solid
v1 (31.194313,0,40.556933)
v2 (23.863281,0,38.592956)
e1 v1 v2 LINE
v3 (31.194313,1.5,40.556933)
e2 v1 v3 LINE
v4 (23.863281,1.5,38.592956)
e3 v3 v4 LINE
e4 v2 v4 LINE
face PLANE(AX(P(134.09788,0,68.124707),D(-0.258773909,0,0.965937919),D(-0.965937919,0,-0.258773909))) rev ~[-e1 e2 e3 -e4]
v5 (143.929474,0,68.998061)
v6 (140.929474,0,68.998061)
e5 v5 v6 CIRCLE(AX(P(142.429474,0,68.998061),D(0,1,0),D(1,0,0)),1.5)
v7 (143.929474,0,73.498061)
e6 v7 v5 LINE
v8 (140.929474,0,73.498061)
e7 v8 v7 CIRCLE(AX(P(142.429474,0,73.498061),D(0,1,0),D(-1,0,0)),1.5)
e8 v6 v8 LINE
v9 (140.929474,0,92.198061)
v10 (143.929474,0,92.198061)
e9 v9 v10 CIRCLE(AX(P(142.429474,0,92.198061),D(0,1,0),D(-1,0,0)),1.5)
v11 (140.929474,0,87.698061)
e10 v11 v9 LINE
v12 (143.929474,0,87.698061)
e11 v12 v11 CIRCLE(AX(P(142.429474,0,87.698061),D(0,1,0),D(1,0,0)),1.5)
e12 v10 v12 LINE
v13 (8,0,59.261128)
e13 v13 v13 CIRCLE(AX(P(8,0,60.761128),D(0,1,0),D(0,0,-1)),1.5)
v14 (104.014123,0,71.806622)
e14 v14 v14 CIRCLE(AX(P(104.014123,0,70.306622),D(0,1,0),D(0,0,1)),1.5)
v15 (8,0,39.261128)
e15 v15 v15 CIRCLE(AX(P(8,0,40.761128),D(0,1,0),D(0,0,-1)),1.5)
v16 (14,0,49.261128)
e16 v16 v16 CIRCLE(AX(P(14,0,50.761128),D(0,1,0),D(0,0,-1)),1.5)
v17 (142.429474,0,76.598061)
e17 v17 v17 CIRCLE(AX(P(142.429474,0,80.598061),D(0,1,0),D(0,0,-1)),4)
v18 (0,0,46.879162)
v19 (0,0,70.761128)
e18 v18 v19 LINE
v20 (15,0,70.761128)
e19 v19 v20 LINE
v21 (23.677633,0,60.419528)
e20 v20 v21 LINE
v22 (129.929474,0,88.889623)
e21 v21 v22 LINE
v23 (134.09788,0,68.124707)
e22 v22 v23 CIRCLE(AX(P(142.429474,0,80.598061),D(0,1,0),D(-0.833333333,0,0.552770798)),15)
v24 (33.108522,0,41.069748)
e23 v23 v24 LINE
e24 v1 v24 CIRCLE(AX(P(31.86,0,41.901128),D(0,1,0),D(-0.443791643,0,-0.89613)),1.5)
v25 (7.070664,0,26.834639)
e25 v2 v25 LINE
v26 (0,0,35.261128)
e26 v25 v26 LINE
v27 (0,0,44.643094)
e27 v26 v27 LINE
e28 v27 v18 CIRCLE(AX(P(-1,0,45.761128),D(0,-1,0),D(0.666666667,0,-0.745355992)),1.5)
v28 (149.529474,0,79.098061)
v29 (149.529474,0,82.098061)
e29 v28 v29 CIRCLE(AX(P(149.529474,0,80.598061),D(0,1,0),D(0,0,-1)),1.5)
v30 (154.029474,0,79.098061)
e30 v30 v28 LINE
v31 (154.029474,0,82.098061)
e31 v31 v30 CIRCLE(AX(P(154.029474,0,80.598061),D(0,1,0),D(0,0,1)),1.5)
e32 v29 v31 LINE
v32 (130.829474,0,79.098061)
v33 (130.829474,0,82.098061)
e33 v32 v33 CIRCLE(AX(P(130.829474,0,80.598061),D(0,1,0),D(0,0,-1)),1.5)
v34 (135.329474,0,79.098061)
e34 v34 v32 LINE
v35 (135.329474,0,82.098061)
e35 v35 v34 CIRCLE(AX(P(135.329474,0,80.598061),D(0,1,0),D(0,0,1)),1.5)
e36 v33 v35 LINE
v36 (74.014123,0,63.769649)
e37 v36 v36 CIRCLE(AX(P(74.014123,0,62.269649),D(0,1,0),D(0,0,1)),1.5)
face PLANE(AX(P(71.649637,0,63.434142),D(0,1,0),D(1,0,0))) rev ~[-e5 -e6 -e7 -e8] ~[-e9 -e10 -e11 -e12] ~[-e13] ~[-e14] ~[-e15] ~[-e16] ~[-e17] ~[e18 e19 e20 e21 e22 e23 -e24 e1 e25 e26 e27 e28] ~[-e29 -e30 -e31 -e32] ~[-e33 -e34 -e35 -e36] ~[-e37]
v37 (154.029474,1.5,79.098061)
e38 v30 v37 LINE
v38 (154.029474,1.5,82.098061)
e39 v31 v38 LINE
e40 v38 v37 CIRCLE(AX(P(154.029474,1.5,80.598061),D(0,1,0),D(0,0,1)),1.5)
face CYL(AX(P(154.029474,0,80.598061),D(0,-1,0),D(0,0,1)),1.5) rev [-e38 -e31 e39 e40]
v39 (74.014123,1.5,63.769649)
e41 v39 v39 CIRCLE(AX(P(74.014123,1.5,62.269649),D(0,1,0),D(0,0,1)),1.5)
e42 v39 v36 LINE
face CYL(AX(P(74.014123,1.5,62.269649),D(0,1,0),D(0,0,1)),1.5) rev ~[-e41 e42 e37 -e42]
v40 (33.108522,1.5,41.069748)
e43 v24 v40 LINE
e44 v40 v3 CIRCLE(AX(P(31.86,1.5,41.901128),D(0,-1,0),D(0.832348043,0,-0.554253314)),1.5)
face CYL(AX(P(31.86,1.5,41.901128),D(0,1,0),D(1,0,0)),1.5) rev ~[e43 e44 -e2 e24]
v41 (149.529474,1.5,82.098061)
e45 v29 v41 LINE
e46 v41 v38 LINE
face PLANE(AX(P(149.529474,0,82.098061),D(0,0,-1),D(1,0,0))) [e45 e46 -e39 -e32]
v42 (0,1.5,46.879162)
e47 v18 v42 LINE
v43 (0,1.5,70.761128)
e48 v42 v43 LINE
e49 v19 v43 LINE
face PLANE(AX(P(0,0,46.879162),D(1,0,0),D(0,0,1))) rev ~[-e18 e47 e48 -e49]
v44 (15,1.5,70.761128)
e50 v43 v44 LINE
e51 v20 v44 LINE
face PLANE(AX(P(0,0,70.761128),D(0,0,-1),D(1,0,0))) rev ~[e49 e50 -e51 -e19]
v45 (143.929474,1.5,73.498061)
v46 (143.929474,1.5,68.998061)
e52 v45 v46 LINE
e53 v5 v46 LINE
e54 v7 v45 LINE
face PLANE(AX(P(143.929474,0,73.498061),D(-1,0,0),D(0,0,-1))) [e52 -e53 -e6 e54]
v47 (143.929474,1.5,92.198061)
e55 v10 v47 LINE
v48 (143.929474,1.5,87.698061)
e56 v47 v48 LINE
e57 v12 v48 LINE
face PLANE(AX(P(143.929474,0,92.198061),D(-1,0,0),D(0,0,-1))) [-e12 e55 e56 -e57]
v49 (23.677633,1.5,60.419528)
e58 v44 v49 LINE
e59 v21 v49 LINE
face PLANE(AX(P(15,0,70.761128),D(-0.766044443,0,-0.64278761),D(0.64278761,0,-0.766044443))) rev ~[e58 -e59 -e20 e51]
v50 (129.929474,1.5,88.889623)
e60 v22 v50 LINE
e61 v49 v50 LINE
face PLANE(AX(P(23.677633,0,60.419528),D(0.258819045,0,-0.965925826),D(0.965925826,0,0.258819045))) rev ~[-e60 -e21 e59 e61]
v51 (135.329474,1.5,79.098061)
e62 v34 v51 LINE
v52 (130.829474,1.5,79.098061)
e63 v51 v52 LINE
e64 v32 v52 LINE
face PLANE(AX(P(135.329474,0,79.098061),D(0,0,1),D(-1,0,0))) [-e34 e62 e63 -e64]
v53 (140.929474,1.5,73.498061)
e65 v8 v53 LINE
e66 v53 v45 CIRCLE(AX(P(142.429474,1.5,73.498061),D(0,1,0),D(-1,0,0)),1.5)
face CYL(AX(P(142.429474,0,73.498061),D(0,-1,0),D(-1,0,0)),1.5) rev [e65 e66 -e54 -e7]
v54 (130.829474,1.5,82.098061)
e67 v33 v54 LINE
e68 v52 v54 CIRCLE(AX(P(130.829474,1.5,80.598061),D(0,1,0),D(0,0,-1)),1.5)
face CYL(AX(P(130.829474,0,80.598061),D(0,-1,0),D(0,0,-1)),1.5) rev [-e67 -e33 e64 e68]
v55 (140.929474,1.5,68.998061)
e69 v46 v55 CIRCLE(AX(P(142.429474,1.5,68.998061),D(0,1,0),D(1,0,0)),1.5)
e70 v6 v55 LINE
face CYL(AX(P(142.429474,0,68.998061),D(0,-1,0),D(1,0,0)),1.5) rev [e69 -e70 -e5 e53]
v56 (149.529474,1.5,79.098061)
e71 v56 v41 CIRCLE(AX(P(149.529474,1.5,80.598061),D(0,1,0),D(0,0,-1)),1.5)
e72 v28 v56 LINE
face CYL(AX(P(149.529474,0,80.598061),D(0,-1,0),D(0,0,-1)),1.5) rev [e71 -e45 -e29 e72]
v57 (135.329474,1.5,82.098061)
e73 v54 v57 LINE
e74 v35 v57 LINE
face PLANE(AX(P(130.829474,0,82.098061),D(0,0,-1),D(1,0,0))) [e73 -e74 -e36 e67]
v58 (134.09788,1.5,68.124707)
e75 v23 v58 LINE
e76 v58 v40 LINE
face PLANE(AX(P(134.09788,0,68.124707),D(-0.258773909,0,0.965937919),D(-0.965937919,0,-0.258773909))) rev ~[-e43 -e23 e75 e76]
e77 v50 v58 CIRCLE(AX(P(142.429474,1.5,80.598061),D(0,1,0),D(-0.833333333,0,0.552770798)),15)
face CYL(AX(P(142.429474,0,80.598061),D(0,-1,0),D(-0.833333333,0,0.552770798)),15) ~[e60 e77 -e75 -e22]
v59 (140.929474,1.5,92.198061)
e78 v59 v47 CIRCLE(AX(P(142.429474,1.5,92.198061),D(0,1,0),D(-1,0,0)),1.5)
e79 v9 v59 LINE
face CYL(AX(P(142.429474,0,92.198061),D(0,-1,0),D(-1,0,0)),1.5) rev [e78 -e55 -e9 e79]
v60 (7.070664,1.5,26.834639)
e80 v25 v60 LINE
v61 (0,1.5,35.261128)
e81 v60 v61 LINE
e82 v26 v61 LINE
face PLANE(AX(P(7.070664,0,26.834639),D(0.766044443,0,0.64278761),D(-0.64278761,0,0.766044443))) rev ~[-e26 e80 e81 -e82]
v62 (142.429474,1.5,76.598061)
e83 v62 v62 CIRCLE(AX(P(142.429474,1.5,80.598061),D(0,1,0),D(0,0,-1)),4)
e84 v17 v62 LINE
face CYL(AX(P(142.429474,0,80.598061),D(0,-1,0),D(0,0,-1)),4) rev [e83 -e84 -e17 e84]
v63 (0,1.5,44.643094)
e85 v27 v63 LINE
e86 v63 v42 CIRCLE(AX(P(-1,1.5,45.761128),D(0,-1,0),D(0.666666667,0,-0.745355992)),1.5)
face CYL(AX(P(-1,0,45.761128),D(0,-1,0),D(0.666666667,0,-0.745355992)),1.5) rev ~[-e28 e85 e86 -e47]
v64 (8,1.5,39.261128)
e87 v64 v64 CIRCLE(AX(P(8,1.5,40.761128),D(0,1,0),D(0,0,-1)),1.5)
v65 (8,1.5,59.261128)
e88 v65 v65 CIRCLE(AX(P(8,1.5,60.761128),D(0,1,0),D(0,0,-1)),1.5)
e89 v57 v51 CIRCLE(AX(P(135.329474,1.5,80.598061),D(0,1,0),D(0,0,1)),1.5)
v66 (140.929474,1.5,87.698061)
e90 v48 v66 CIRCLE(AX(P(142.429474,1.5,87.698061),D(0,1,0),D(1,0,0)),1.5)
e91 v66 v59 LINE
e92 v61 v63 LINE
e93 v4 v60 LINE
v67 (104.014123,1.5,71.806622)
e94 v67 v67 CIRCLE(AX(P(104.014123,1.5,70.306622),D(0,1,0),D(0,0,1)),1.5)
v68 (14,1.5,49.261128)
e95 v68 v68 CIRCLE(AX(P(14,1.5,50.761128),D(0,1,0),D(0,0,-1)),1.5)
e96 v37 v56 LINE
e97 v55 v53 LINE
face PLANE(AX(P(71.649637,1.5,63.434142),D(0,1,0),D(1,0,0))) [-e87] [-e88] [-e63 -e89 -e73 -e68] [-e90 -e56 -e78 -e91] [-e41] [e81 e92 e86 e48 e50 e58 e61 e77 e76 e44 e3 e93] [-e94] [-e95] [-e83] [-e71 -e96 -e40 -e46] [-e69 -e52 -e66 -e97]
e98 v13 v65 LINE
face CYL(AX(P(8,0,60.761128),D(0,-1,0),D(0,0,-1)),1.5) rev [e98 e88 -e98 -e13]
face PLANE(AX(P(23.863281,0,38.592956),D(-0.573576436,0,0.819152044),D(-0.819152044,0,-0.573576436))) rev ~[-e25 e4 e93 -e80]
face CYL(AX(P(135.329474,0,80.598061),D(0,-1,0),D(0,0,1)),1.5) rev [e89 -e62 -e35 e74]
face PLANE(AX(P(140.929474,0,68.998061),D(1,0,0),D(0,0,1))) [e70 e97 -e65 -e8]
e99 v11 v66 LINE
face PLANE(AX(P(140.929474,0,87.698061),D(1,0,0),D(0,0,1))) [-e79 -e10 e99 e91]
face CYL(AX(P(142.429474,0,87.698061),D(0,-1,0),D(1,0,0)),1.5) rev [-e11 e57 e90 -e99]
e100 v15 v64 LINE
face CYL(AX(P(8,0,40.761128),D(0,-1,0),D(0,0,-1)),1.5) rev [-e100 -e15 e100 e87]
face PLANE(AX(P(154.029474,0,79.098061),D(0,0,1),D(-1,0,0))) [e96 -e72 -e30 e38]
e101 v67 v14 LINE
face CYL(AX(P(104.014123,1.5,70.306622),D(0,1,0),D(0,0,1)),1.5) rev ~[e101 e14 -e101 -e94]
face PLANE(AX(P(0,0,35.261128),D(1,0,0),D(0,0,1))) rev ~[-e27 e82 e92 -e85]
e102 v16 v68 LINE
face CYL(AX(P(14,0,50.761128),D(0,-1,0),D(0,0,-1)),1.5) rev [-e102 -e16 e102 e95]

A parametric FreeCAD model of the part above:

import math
import FreeCAD as App
import Part
import Sketcher

V = App.Vector
Q = App.Units.Quantity

doc = App.newDocument("Part")
params = doc.addObject("Spreadsheet::Sheet", "Params")
for row, (alias, value) in enumerate([
    ("sketch1_diameter", "8 mm"),
    ("sketch1_diameter2", "3 mm"),
    ("sketch1_radius", "15 mm"),
    ("sketch1_width", "15 mm"),
    ("sketch1_length", "110 mm"),
    ("pad1_length", "1.5 mm"),
    ("sketch2_diameter", "3 mm"),
    ("pocket1_length", "1.5 mm"),
    ("sketch3_diameter", "3 mm"),
    ("pocket2_length", "1.5 mm"),
], start=1):
    params.set(f"A{row}", alias)
    params.set(f"B{row}", "=" + value)
    params.setAlias(f"B{row}", alias)

body = doc.addObject("PartDesign::Body", "Body")

# Sketch on XZ plane
sketch1 = doc.addObject("Sketcher::SketchObject", "Sketch")
body.addObject(sketch1)
sketch1.AttachmentSupport = (doc.XZ_Plane, [""])
sketch1.MapMode = "FlatFace"
sketch1.addGeometry([
    Part.LineSegment(V(0, 46.9, 0), V(0, 70.8, 0)),  # 0
    Part.LineSegment(V(0, 70.8, 0), V(15, 70.8, 0)),  # 1
    Part.LineSegment(V(15, 70.8, 0), V(23.7, 60.4, 0)),  # 2
    Part.LineSegment(V(23.7, 60.4, 0), V(129.9, 88.9, 0)),  # 3
    Part.ArcOfCircle(Part.Circle(V(142.4, 80.6, 0), V(0, 0, 1), 15), math.radians(-124), math.radians(146)),  # 4
    Part.LineSegment(V(134.1, 68.1, 0), V(23.9, 38.6, 0)),  # 5
    Part.LineSegment(V(23.9, 38.6, 0), V(7.1, 26.8, 0)),  # 6
    Part.LineSegment(V(7.1, 26.8, 0), V(0, 35.3, 0)),  # 7
    Part.LineSegment(V(0, 35.3, 0), V(0, 44.6, 0)),  # 8
    Part.ArcOfCircle(Part.Circle(V(-1, 45.8, 0), V(0, 0, 1), 1.5), math.radians(-48), math.radians(48)),  # 9
    Part.LineSegment(V(140.9, 92.2, 0), V(140.9, 87.7, 0)),  # 10
    Part.ArcOfCircle(Part.Circle(V(142.4, 87.7, 0), V(0, 0, 1), 1.5), math.radians(180), math.radians(360)),  # 11
    Part.LineSegment(V(143.9, 87.7, 0), V(143.9, 92.2, 0)),  # 12
    Part.ArcOfCircle(Part.Circle(V(142.4, 92.2, 0), V(0, 0, 1), 1.5), math.radians(0), math.radians(180)),  # 13
    Part.LineSegment(V(130.8, 79.1, 0), V(135.3, 79.1, 0)),  # 14
    Part.ArcOfCircle(Part.Circle(V(135.3, 80.6, 0), V(0, 0, 1), 1.5), math.radians(-90), math.radians(90)),  # 15
    Part.LineSegment(V(135.3, 82.1, 0), V(130.8, 82.1, 0)),  # 16
    Part.ArcOfCircle(Part.Circle(V(130.8, 80.6, 0), V(0, 0, 1), 1.5), math.radians(90), math.radians(270)),  # 17
    Part.Circle(V(142.4, 80.6, 0), V(0, 0, 1), 4),  # 18
    Part.LineSegment(V(154, 82.1, 0), V(149.5, 82.1, 0)),  # 19
    Part.ArcOfCircle(Part.Circle(V(149.5, 80.6, 0), V(0, 0, 1), 1.5), math.radians(90), math.radians(270)),  # 20
    Part.LineSegment(V(149.5, 79.1, 0), V(154, 79.1, 0)),  # 21
    Part.ArcOfCircle(Part.Circle(V(154, 80.6, 0), V(0, 0, 1), 1.5), math.radians(-90), math.radians(90)),  # 22
    Part.LineSegment(V(143.9, 69, 0), V(143.9, 73.5, 0)),  # 23
    Part.ArcOfCircle(Part.Circle(V(142.4, 73.5, 0), V(0, 0, 1), 1.5), math.radians(0), math.radians(180)),  # 24
    Part.LineSegment(V(140.9, 73.5, 0), V(140.9, 69, 0)),  # 25
    Part.ArcOfCircle(Part.Circle(V(142.4, 69, 0), V(0, 0, 1), 1.5), math.radians(180), math.radians(360)),  # 26
    Part.Circle(V(8, 60.8, 0), V(0, 0, 1), 1.5),  # 27
    Part.Circle(V(14, 50.8, 0), V(0, 0, 1), 1.5),  # 28
    Part.Circle(V(8, 40.8, 0), V(0, 0, 1), 1.5),  # 29
], False)
sketch1.addConstraint([
    Sketcher.Constraint("Coincident", 0, 2, 1, 1),
    Sketcher.Constraint("Coincident", 1, 2, 2, 1),
    Sketcher.Constraint("Coincident", 2, 2, 3, 1),
    Sketcher.Constraint("Coincident", 3, 2, 4, 2),
    Sketcher.Constraint("Coincident", 4, 1, 5, 1),
    Sketcher.Constraint("Coincident", 5, 2, 6, 1),
    Sketcher.Constraint("Coincident", 6, 2, 7, 1),
    Sketcher.Constraint("Coincident", 7, 2, 8, 1),
    Sketcher.Constraint("Coincident", 8, 2, 9, 1),
    Sketcher.Constraint("Coincident", 9, 2, 0, 1),
    Sketcher.Constraint("Tangent", 10, 2, 11, 1),
    Sketcher.Constraint("Tangent", 11, 2, 12, 1),
    Sketcher.Constraint("Tangent", 12, 2, 13, 1),
    Sketcher.Constraint("Tangent", 13, 2, 10, 1),
    Sketcher.Constraint("Tangent", 14, 2, 15, 1),
    Sketcher.Constraint("Tangent", 15, 2, 16, 1),
    Sketcher.Constraint("Tangent", 16, 2, 17, 1),
    Sketcher.Constraint("Tangent", 17, 2, 14, 1),
    Sketcher.Constraint("Tangent", 19, 2, 20, 1),
    Sketcher.Constraint("Tangent", 20, 2, 21, 1),
    Sketcher.Constraint("Tangent", 21, 2, 22, 1),
    Sketcher.Constraint("Tangent", 22, 2, 19, 1),
    Sketcher.Constraint("Tangent", 23, 2, 24, 1),
    Sketcher.Constraint("Tangent", 24, 2, 25, 1),
    Sketcher.Constraint("Tangent", 25, 2, 26, 1),
    Sketcher.Constraint("Tangent", 26, 2, 23, 1),
    Sketcher.Constraint("Vertical", 0),
    Sketcher.Constraint("Horizontal", 1),
    Sketcher.Constraint("Vertical", 8),
    Sketcher.Constraint("Vertical", 10),
    Sketcher.Constraint("Vertical", 12),
    Sketcher.Constraint("Horizontal", 14),
    Sketcher.Constraint("Horizontal", 16),
    Sketcher.Constraint("Horizontal", 19),
    Sketcher.Constraint("Horizontal", 21),
    Sketcher.Constraint("Vertical", 23),
    Sketcher.Constraint("Vertical", 25),
    Sketcher.Constraint("Coincident", 18, 3, 4, 3),
    Sketcher.Constraint("Equal", 9, 11),
    Sketcher.Constraint("Equal", 13, 15),
    Sketcher.Constraint("Equal", 17, 20),
    Sketcher.Constraint("Equal", 22, 24),
    Sketcher.Constraint("Equal", 26, 27),
    Sketcher.Constraint("Equal", 27, 28),
    Sketcher.Constraint("Equal", 28, 29),
    Sketcher.Constraint("PointOnObject", 0, 2, -2),
    Sketcher.Constraint("PointOnObject", 7, 2, -2),
    Sketcher.Constraint("Parallel", 2, 7),
    Sketcher.Constraint("Horizontal", 4, 3, 15, 3),
    Sketcher.Constraint("Horizontal", 18, 3, 20, 3),
    Sketcher.Constraint("Vertical", 4, 3, 11, 3),
    Sketcher.Constraint("Vertical", 18, 3, 24, 3),
    Sketcher.Constraint("Vertical", 27, 3, 29, 3),
    Sketcher.Constraint("Equal", 16, 19),
    Sketcher.Constraint("Equal", 21, 10),
    Sketcher.Constraint("Equal", 12, 23),
    Sketcher.Constraint("Diameter", 18, 8.0),
    Sketcher.Constraint("Diameter", 27, 3.0),
    Sketcher.Constraint("Radius", 4, 15.0),
    Sketcher.Constraint("DistanceX", 1, 1, 1, 2, 15.0),
    Sketcher.Constraint("Angle", 2, Q("-50 deg")),
    Sketcher.Constraint("Angle", 3, Q("15 deg")),
    Sketcher.Constraint("Angle", 6, Q("-145 deg")),
    Sketcher.Constraint("Distance", 3, 110.0),
    Sketcher.Constraint("Distance", 7, 11.0),
    Sketcher.Constraint("DistanceX", 14, 1, 14, 2, 4.5),
    Sketcher.Constraint("DistanceX", 9, 3, -1, 1, 1.0),
    Sketcher.Constraint("DistanceX", -1, 1, 27, 3, 8.0),
    Sketcher.Constraint("DistanceX", -1, 1, 28, 3, 14.0),
    Sketcher.Constraint("DistanceY", 9, 3, 27, 3, 15.0),
    Sketcher.Constraint("DistanceY", 28, 3, 27, 3, 10.0),
    Sketcher.Constraint("DistanceY", 29, 3, 9, 3, 5.0),
    Sketcher.Constraint("DistanceY", 27, 3, 0, 2, 10.0),
    Sketcher.Constraint("Distance", 2, 13.5),
    Sketcher.Constraint("Distance", 6, 20.5),
    Sketcher.Constraint("DistanceY", 4, 3, 11, 3, 7.1),
    Sketcher.Constraint("DistanceX", 15, 3, 4, 3, 7.1),
    Sketcher.Constraint("DistanceX", 4, 3, 20, 3, 7.1),
    Sketcher.Constraint("DistanceY", 24, 3, 4, 3, 7.1),
    Sketcher.Constraint("DistanceX", 3, 2, 17, 3, 0.9),
    Sketcher.Constraint("DistanceY", 7, 2, 29, 3, 5.5),
    Sketcher.Constraint("DistanceY", -1, 1, 4, 3, 80.598061),
    Sketcher.Constraint("DistanceX", -1, 1, 4, 1, 134.09788),
])
sketch1.setExpression("Constraints[56]", "Params.sketch1_diameter")
sketch1.setExpression("Constraints[57]", "Params.sketch1_diameter2")
sketch1.setExpression("Constraints[58]", "Params.sketch1_radius")
sketch1.setExpression("Constraints[59]", "Params.sketch1_width")
sketch1.setExpression("Constraints[63]", "Params.sketch1_length")
pad1 = doc.addObject("PartDesign::Pad", "Pad")
body.addObject(pad1)
pad1.Profile = sketch1
pad1.setExpression("Length", "Params.pad1_length")
pad1.Reversed = True

# Sketch on XZ plane
sketch2 = doc.addObject("Sketcher::SketchObject", "Sketch001")
body.addObject(sketch2)
sketch2.AttachmentSupport = (doc.XZ_Plane, [""])
sketch2.MapMode = "FlatFace"
sketch2.AttachmentOffset = App.Placement(V(0, 0, -1.5), App.Rotation())
sketch2.addGeometry(Part.Circle(V(31.9, 41.9, 0), V(0, 0, 1), 1.5), False)
sketch2.addConstraint([
    Sketcher.Constraint("Diameter", 0, 3.0),
    Sketcher.Constraint("DistanceX", -1, 1, 0, 3, 31.86),
    Sketcher.Constraint("DistanceY", -1, 1, 0, 3, 41.901128),
])
sketch2.setExpression("Constraints[0]", "Params.sketch2_diameter")
pocket1 = doc.addObject("PartDesign::Pocket", "Pocket")
body.addObject(pocket1)
pocket1.Profile = sketch2
pocket1.setExpression("Length", "Params.pocket1_length")
pocket1.Reversed = True

# Sketch on XZ plane
sketch3 = doc.addObject("Sketcher::SketchObject", "Sketch002")
body.addObject(sketch3)
sketch3.AttachmentSupport = (doc.XZ_Plane, [""])
sketch3.MapMode = "FlatFace"
sketch3.AttachmentOffset = App.Placement(V(0, 0, -1.5), App.Rotation())
sketch3.addGeometry([
    Part.Circle(V(74, 62.3, 0), V(0, 0, 1), 1.5),
    Part.Circle(V(104, 70.3, 0), V(0, 0, 1), 1.5),
], False)
sketch3.addConstraint([
    Sketcher.Constraint("Equal", 0, 1),
    Sketcher.Constraint("Diameter", 0, 3.0),
    Sketcher.Constraint("DistanceX", 0, 3, 1, 3, 30.0),
    Sketcher.Constraint("DistanceY", -1, 1, 0, 3, 62.269649),
    Sketcher.Constraint("DistanceX", -1, 1, 0, 3, 74.014123),
    Sketcher.Constraint("DistanceY", -1, 1, 1, 3, 70.306622),
])
sketch3.setExpression("Constraints[1]", "Params.sketch3_diameter")
pocket2 = doc.addObject("PartDesign::Pocket", "Pocket001")
body.addObject(pocket2)
pocket2.Profile = sketch3
pocket2.setExpression("Length", "Params.pocket2_length")
pocket2.Reversed = True

doc.recompute()
